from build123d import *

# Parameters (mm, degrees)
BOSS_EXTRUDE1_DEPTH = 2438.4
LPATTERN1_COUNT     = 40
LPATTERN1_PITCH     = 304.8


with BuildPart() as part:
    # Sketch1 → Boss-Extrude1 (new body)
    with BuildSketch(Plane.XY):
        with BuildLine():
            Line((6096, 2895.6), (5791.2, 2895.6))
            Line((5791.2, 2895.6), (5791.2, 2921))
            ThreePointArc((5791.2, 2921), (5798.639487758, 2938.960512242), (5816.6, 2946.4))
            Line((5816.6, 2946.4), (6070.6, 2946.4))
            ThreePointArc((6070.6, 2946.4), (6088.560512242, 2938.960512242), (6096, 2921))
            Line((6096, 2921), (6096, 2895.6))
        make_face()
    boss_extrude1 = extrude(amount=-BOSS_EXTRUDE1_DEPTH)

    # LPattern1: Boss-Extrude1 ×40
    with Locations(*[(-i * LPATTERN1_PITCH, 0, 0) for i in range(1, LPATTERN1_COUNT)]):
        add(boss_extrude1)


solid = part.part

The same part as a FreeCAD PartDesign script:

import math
import FreeCAD as App
import Part
import Sketcher
Q = App.Units.Quantity

doc = App.newDocument("Part")
body = doc.addObject("PartDesign::Body", "Body")

sketch1 = doc.addObject("Sketcher::SketchObject", "Sketch")
body.addObject(sketch1)
sketch1.AttachmentSupport = (doc.XY_Plane, [""])
sketch1.MapMode = "FlatFace"
sketch1.addGeometry(Part.LineSegment(App.Vector(5791.2, 2895.6, 0), App.Vector(6096, 2895.6, 0)), False)
sketch1.addGeometry(Part.LineSegment(App.Vector(6096, 2895.6, 0), App.Vector(6096, 2921, 0)), False)
sketch1.addGeometry(Part.ArcOfCircle(Part.Circle(App.Vector(6070.6, 2921, 0), App.Vector(0, 0, 1), 25.4), math.radians(0), math.radians(90)), False)
sketch1.addGeometry(Part.LineSegment(App.Vector(6070.6, 2946.4, 0), App.Vector(5816.6, 2946.4, 0)), False)
sketch1.addGeometry(Part.ArcOfCircle(Part.Circle(App.Vector(5816.6, 2921, 0), App.Vector(0, 0, 1), 25.4), math.radians(90), math.radians(180)), False)
sketch1.addGeometry(Part.LineSegment(App.Vector(5791.2, 2921, 0), App.Vector(5791.2, 2895.6, 0)), False)
sketch1.addConstraint(Sketcher.Constraint("Coincident", 0, 2, 1, 1))
sketch1.addConstraint(Sketcher.Constraint("Tangent", 1, 2, 2, 1))
sketch1.addConstraint(Sketcher.Constraint("Tangent", 2, 2, 3, 1))
sketch1.addConstraint(Sketcher.Constraint("Tangent", 3, 2, 4, 1))
sketch1.addConstraint(Sketcher.Constraint("Tangent", 4, 2, 5, 1))
sketch1.addConstraint(Sketcher.Constraint("Coincident", 5, 2, 0, 1))
sketch1.addConstraint(Sketcher.Constraint("Horizontal", 0))
sketch1.addConstraint(Sketcher.Constraint("Vertical", 1))
sketch1.addConstraint(Sketcher.Constraint("Horizontal", 3))
sketch1.addConstraint(Sketcher.Constraint("Vertical", 5))
sketch1.addConstraint(Sketcher.Constraint("Equal", 2, 4))
sketch1.addConstraint(Sketcher.Constraint("Radius", 2, Q("1 in")))
sketch1.addConstraint(Sketcher.Constraint("DistanceX", 0, 1, 0, 2, Q("12 in")))
sketch1.addConstraint(Sketcher.Constraint("DistanceY", 1, 1, 1, 2, Q("1 in")))
sketch1.addConstraint(Sketcher.Constraint("DistanceX", -1, 1, 2, 3, Q("239 in")))
sketch1.addConstraint(Sketcher.Constraint("DistanceY", -1, 1, 2, 3, Q("115 in")))
pad1 = doc.addObject("PartDesign::Pad", "Pad")
body.addObject(pad1)
pad1.Profile = sketch1
pad1.Length = Q("96 in")
pad1.Reversed = True
doc.recompute()

linearpattern = doc.addObject("PartDesign::LinearPattern", "LinearPattern")
body.addObject(linearpattern)
linearpattern.Originals = [pad1]
linearpattern.Direction = (doc.X_Axis, [""])
linearpattern.Mode = "offset"
linearpattern.Offset = Q("12 in")
linearpattern.Occurrences = 40
linearpattern.Reversed = True
body.Tip = linearpattern

doc.recompute()
